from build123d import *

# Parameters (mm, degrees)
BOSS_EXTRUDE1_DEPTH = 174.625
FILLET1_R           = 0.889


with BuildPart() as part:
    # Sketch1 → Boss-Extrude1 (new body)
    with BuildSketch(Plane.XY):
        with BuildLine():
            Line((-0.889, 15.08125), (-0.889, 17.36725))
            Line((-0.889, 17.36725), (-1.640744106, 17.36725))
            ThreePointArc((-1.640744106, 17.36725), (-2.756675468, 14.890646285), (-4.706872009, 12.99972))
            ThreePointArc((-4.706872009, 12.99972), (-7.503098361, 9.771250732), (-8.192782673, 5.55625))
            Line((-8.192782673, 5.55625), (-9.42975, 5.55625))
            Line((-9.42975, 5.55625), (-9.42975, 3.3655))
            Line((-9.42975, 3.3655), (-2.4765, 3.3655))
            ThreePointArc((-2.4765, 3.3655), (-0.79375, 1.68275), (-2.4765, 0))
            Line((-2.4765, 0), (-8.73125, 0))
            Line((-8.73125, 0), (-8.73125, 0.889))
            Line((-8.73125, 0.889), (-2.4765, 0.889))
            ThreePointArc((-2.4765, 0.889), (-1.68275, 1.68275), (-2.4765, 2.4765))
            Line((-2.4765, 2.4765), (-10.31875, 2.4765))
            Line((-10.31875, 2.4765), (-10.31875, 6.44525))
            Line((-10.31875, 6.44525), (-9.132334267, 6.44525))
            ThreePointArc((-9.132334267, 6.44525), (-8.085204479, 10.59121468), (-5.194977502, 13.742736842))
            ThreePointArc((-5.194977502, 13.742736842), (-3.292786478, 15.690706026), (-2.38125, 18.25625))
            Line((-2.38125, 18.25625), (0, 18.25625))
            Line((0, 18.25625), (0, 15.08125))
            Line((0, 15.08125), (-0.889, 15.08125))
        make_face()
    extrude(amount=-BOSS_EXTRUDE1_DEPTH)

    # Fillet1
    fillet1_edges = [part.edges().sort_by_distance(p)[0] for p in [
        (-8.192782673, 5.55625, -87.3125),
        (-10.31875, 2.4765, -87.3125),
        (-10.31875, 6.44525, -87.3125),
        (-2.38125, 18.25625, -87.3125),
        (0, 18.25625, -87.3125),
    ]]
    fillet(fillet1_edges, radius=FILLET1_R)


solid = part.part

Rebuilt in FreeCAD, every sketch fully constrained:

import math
import FreeCAD as App
import Part
import Sketcher

V = App.Vector
Q = App.Units.Quantity


def edges_at(feature, points):
    """Names of the edges that pass closest to the given points."""
    edges = feature.Shape.Edges
    near = lambda p: min(range(len(edges)), key=lambda i: edges[i].distToShape(Part.Vertex(*p))[0])
    return sorted({f"Edge{near(p) + 1}" for p in points})

doc = App.newDocument("Part")
body = doc.addObject("PartDesign::Body", "Body")

# Sketch on XY plane
sketch1 = body.newObject("Sketcher::SketchObject", "Sketch")
sketch1.AttachmentSupport = (doc.getObject("XY_Plane"), [""])
sketch1.MapMode = "FlatFace"
sketch1.addGeometry([
    Part.LineSegment(V(-0.9, 17.4, 0), V(-0.9, 15.1, 0)),  # 0
    Part.LineSegment(V(-0.9, 15.1, 0), V(0, 15.1, 0)),  # 1
    Part.LineSegment(V(0, 15.1, 0), V(0, 18.3, 0)),  # 2
    Part.LineSegment(V(0, 18.3, 0), V(-2.4, 18.3, 0)),  # 3
    Part.ArcOfCircle(Part.Circle(V(-8.7, 19, 0), V(0, 0, 1), 6.3), math.radians(-57), math.radians(-7)),  # 4
    Part.ArcOfCircle(Part.Circle(V(-0.4, 6.4, 0), V(0, 0, 1), 8.7), math.radians(123), math.radians(180)),  # 5
    Part.LineSegment(V(-9.1, 6.4, 0), V(-10.3, 6.4, 0)),  # 6
    Part.LineSegment(V(-10.3, 6.4, 0), V(-10.3, 2.5, 0)),  # 7
    Part.LineSegment(V(-10.3, 2.5, 0), V(-2.5, 2.5, 0)),  # 8
    Part.ArcOfCircle(Part.Circle(V(-2.5, 1.7, 0), V(0, 0, 1), 0.8), math.radians(-90), math.radians(90)),  # 9
    Part.LineSegment(V(-2.5, 0.9, 0), V(-8.7, 0.9, 0)),  # 10
    Part.LineSegment(V(-8.7, 0.9, 0), V(-8.7, 0, 0)),  # 11
    Part.LineSegment(V(-8.7, 0, 0), V(-2.5, 0, 0)),  # 12
    Part.ArcOfCircle(Part.Circle(V(-2.5, 1.7, 0), V(0, 0, 1), 1.7), math.radians(-90), math.radians(90)),  # 13
    Part.LineSegment(V(-2.5, 3.4, 0), V(-9.4, 3.4, 0)),  # 14
    Part.LineSegment(V(-9.4, 3.4, 0), V(-9.4, 5.6, 0)),  # 15
    Part.LineSegment(V(-9.4, 5.6, 0), V(-8.2, 5.6, 0)),  # 16
    Part.ArcOfCircle(Part.Circle(V(-0.4, 6.4, 0), V(0, 0, 1), 7.8), math.radians(123), math.radians(187)),  # 17
    Part.ArcOfCircle(Part.Circle(V(-8.7, 19, 0), V(0, 0, 1), 7.2), math.radians(-57), math.radians(-13)),  # 18
    Part.LineSegment(V(-1.6, 17.4, 0), V(-0.9, 17.4, 0)),  # 19
], False)
sketch1.addConstraint([
    Sketcher.Constraint("Coincident", 0, 2, 1, 1),
    Sketcher.Constraint("Coincident", 1, 2, 2, 1),
    Sketcher.Constraint("Coincident", 2, 2, 3, 1),
    Sketcher.Constraint("Coincident", 3, 2, 4, 2),
    Sketcher.Constraint("Tangent", 4, 1, 5, 1),
    Sketcher.Constraint("Coincident", 5, 2, 6, 1),
    Sketcher.Constraint("Coincident", 6, 2, 7, 1),
    Sketcher.Constraint("Coincident", 7, 2, 8, 1),
    Sketcher.Constraint("Tangent", 8, 2, 9, 2),
    Sketcher.Constraint("Tangent", 9, 1, 10, 1),
    Sketcher.Constraint("Coincident", 10, 2, 11, 1),
    Sketcher.Constraint("Coincident", 11, 2, 12, 1),
    Sketcher.Constraint("Tangent", 12, 2, 13, 1),
    Sketcher.Constraint("Tangent", 13, 2, 14, 1),
    Sketcher.Constraint("Coincident", 14, 2, 15, 1),
    Sketcher.Constraint("Coincident", 15, 2, 16, 1),
    Sketcher.Constraint("Coincident", 16, 2, 17, 2),
    Sketcher.Constraint("Tangent", 17, 1, 18, 1),
    Sketcher.Constraint("Coincident", 18, 2, 19, 1),
    Sketcher.Constraint("Coincident", 19, 2, 0, 1),
    Sketcher.Constraint("Vertical", 0),
    Sketcher.Constraint("Horizontal", 1),
    Sketcher.Constraint("Vertical", 2),
    Sketcher.Constraint("Horizontal", 3),
    Sketcher.Constraint("Horizontal", 6),
    Sketcher.Constraint("Vertical", 7),
    Sketcher.Constraint("Horizontal", 8),
    Sketcher.Constraint("Horizontal", 10),
    Sketcher.Constraint("Vertical", 11),
    Sketcher.Constraint("Horizontal", 12),
    Sketcher.Constraint("Horizontal", 14),
    Sketcher.Constraint("Vertical", 15),
    Sketcher.Constraint("Horizontal", 16),
    Sketcher.Constraint("Horizontal", 19),
    Sketcher.Constraint("Coincident", 13, 3, 9, 3),
    Sketcher.Constraint("Coincident", 17, 3, 5, 3),
    Sketcher.Constraint("Coincident", 18, 3, 4, 3),
    Sketcher.Constraint("PointOnObject", 1, 2, -2),
    Sketcher.Constraint("PointOnObject", 11, 2, -1),
    Sketcher.Constraint("Horizontal", 17, 3, 5, 2),
    Sketcher.Constraint("Equal", 1, 11),
    Sketcher.Constraint("Radius", 4, Q("0.25 in")),
    Sketcher.Constraint("Radius", 5, Q("0.34375 in")),
    Sketcher.Constraint("Radius", 9, Q("0.03125 in")),
    Sketcher.Constraint("Radius", 18, Q("0.285 in")),
    Sketcher.Constraint("DistanceY", 0, 2, 0, 1, Q("0.09 in")),
    Sketcher.Constraint("DistanceX", 1, 1, 1, 2, Q("0.035 in")),
    Sketcher.Constraint("DistanceX", 3, 2, 3, 1, Q("0.09375 in")),
    Sketcher.Constraint("DistanceY", 2, 1, 2, 2, Q("0.125 in")),
    Sketcher.Constraint("DistanceY", 7, 2, 7, 1, Q("0.15625 in")),
    Sketcher.Constraint("DistanceY", -1, 1, 4, 3, Q("0.75 in")),
    Sketcher.Constraint("DistanceY", 17, 3, 0, 2, Q("0.34 in")),
    Sketcher.Constraint("DistanceX", 6, 2, -1, 1, Q("0.40625 in")),
    Sketcher.Constraint("DistanceX", 10, 2, -1, 1, Q("0.34375 in")),
    Sketcher.Constraint("DistanceY", -1, 1, 15, 2, Q("0.21875 in")),
    Sketcher.Constraint("DistanceX", 9, 3, 0, 2, Q("0.0625 in")),
    Sketcher.Constraint("DistanceX", 7, 2, 14, 2, Q("0.035 in")),
])
pad1 = body.newObject("PartDesign::Pad", "Pad")
pad1.Profile = sketch1
pad1.Length = Q("6.875 in")
pad1.Reversed = True
doc.recompute()

fillet = body.newObject("PartDesign::Fillet", "Fillet")
fillet.Base = (pad1, edges_at(pad1, [
    (-8.193, 5.556, -87.312),
    (-10.319, 2.477, -87.312),
    (-10.319, 6.445, -87.312),
    (-2.381, 18.256, -87.312),
    (0, 18.256, -87.312),
]))
fillet.Radius = Q("0.035 in")

doc.recompute()
